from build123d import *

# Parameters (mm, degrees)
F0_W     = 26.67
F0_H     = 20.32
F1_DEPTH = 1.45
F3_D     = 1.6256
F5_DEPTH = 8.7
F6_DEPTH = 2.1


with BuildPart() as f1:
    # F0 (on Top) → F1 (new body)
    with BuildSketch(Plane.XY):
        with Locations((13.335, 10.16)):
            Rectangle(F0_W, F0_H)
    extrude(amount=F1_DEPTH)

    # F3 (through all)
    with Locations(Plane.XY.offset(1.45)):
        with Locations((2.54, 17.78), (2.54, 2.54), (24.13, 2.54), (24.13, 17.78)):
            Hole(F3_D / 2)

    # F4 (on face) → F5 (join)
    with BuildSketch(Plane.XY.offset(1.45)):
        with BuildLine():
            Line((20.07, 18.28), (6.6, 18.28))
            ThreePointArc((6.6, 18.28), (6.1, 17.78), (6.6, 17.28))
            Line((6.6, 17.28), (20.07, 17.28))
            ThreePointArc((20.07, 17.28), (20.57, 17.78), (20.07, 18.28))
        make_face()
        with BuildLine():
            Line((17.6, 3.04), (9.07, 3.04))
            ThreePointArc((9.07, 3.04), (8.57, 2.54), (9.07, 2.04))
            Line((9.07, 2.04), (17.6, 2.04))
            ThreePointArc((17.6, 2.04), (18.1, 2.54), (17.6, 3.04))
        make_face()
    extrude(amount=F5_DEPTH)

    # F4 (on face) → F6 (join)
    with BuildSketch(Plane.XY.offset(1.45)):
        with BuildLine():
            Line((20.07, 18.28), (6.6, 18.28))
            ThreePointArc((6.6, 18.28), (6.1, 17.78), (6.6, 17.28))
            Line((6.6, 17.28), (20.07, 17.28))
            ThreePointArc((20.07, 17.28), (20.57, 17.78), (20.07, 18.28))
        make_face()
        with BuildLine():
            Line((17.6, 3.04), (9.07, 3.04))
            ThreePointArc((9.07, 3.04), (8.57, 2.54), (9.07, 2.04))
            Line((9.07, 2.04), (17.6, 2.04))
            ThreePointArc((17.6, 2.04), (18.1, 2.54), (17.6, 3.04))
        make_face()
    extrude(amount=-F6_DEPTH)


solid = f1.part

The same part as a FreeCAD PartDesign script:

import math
import FreeCAD as App
import Part
import Sketcher
Q = App.Units.Quantity


def add_polygon(sketch, points):
    """Adds a closed chain of lines whose ends are joined by coincident constraints."""
    first, n = sketch.GeometryCount, len(points)
    for a, b in zip(points, points[1:] + points[:1]):
        sketch.addGeometry(Part.LineSegment(App.Vector(*a, 0), App.Vector(*b, 0)), False)
    for i in range(n):
        sketch.addConstraint(Sketcher.Constraint("Coincident", first + i, 2, first + (i + 1) % n, 1))

doc = App.newDocument("Part")
body = doc.addObject("PartDesign::Body", "Body")

# Sketch on XY plane
sketch1 = body.newObject("Sketcher::SketchObject", "Sketch")
sketch1.AttachmentSupport = (doc.getObject("XY_Plane"), [""])
sketch1.MapMode = "FlatFace"
add_polygon(sketch1, [(0, 20), (0, 0), (27, 0), (27, 20)])  # lines 0-3
sketch1.addConstraint([
    Sketcher.Constraint("Vertical", 0),
    Sketcher.Constraint("Horizontal", 1),
    Sketcher.Constraint("Vertical", 2),
    Sketcher.Constraint("Horizontal", 3),
    Sketcher.Constraint("Coincident", 0, 2, -1, 1),
    Sketcher.Constraint("DistanceX", 1, 1, 1, 2, Q("26.67 mm")),
    Sketcher.Constraint("DistanceY", 0, 2, 0, 1, Q("20.32 mm")),
])
pad1 = body.newObject("PartDesign::Pad", "Pad")
pad1.Profile = sketch1
pad1.Length = 1.45

# Sketch on XY plane
sketch2 = body.newObject("Sketcher::SketchObject", "Sketch001")
sketch2.AttachmentSupport = (doc.getObject("XY_Plane"), [""])
sketch2.MapMode = "FlatFace"
sketch2.AttachmentOffset = App.Placement(App.Vector(0, 0, 1.45), App.Rotation())
sketch2.addGeometry([
    Part.Circle(App.Vector(2.5, 17.8, 0), App.Vector(0, 0, 1), 0.8),
    Part.Circle(App.Vector(2.5, 2.5, 0), App.Vector(0, 0, 1), 0.8),
    Part.Circle(App.Vector(24.1, 2.5, 0), App.Vector(0, 0, 1), 0.8),
    Part.Circle(App.Vector(24.1, 17.8, 0), App.Vector(0, 0, 1), 0.8),
], False)
sketch2.addConstraint([
    Sketcher.Constraint("Equal", 0, 1),
    Sketcher.Constraint("Equal", 1, 2),
    Sketcher.Constraint("Equal", 2, 3),
    Sketcher.Constraint("Horizontal", 1, 3, 2, 3),
    Sketcher.Constraint("Horizontal", 0, 3, 3, 3),
    Sketcher.Constraint("Vertical", 0, 3, 1, 3),
    Sketcher.Constraint("Vertical", 2, 3, 3, 3),
    Sketcher.Constraint("Diameter", 0, Q("1.6256 mm")),
    Sketcher.Constraint("DistanceX", -1, 1, 0, 3, Q("2.54 mm")),
    Sketcher.Constraint("DistanceY", -1, 1, 0, 3, Q("17.78 mm")),
    Sketcher.Constraint("DistanceY", -1, 1, 1, 3, Q("2.54 mm")),
    Sketcher.Constraint("DistanceX", -1, 1, 2, 3, Q("24.13 mm")),
])
doc.recompute()
hole = body.newObject("PartDesign::Hole", "Hole")
hole.Profile = sketch2
hole.ThreadType = "None"
hole.Diameter = 1.6256
hole.DepthType = "ThroughAll"

# Sketch on XY plane
sketch3 = body.newObject("Sketcher::SketchObject", "Sketch002")
sketch3.AttachmentSupport = (doc.getObject("XY_Plane"), [""])
sketch3.MapMode = "FlatFace"
sketch3.AttachmentOffset = App.Placement(App.Vector(0, 0, 1.45), App.Rotation())
sketch3.addGeometry([
    Part.LineSegment(App.Vector(20.1, 18.3, 0), App.Vector(6.6, 18.3, 0)),  # 0
    Part.ArcOfCircle(Part.Circle(App.Vector(6.6, 17.8, 0), App.Vector(0, 0, 1), 0.5), math.radians(90), math.radians(270)),  # 1
    Part.LineSegment(App.Vector(6.6, 17.3, 0), App.Vector(20.1, 17.3, 0)),  # 2
    Part.ArcOfCircle(Part.Circle(App.Vector(20.1, 17.8, 0), App.Vector(0, 0, 1), 0.5), math.radians(-90), math.radians(90)),  # 3
    Part.LineSegment(App.Vector(17.6, 3, 0), App.Vector(9.1, 3, 0)),  # 4
    Part.ArcOfCircle(Part.Circle(App.Vector(9.1, 2.5, 0), App.Vector(0, 0, 1), 0.5), math.radians(90), math.radians(270)),  # 5
    Part.LineSegment(App.Vector(9.1, 2, 0), App.Vector(17.6, 2, 0)),  # 6
    Part.ArcOfCircle(Part.Circle(App.Vector(17.6, 2.5, 0), App.Vector(0, 0, 1), 0.5), math.radians(-90), math.radians(90)),  # 7
], False)
sketch3.addConstraint([
    Sketcher.Constraint("Tangent", 0, 2, 1, 1),
    Sketcher.Constraint("Tangent", 1, 2, 2, 1),
    Sketcher.Constraint("Tangent", 2, 2, 3, 1),
    Sketcher.Constraint("Tangent", 3, 2, 0, 1),
    Sketcher.Constraint("Tangent", 4, 2, 5, 1),
    Sketcher.Constraint("Tangent", 5, 2, 6, 1),
    Sketcher.Constraint("Tangent", 6, 2, 7, 1),
    Sketcher.Constraint("Tangent", 7, 2, 4, 1),
    Sketcher.Constraint("Horizontal", 0),
    Sketcher.Constraint("Horizontal", 2),
    Sketcher.Constraint("Horizontal", 4),
    Sketcher.Constraint("Horizontal", 6),
    Sketcher.Constraint("Equal", 3, 5),
    Sketcher.Constraint("Radius", 1, Q("0.5 mm")),
    Sketcher.Constraint("DistanceX", 5, 3, 3, 3, Q("11 mm")),
    Sketcher.Constraint("DistanceX", 1, 3, 7, 3, Q("11 mm")),
    Sketcher.Constraint("DistanceX", 0, 2, 0, 1, Q("13.47 mm")),
    Sketcher.Constraint("DistanceX", -1, 1, 1, 3, Q("6.6 mm")),
    Sketcher.Constraint("DistanceY", -1, 1, 1, 3, Q("17.78 mm")),
    Sketcher.Constraint("DistanceY", -1, 1, 5, 3, Q("2.54 mm")),
])
pad2 = body.newObject("PartDesign::Pad", "Pad001")
pad2.Profile = sketch3
pad2.Length = 8.7

# Sketch on XY plane
sketch4 = body.newObject("Sketcher::SketchObject", "Sketch003")
sketch4.AttachmentSupport = (doc.getObject("XY_Plane"), [""])
sketch4.MapMode = "FlatFace"
sketch4.AttachmentOffset = App.Placement(App.Vector(0, 0, 1.45), App.Rotation())
sketch4.addGeometry([
    Part.LineSegment(App.Vector(20.1, 18.3, 0), App.Vector(6.6, 18.3, 0)),  # 0
    Part.ArcOfCircle(Part.Circle(App.Vector(6.6, 17.8, 0), App.Vector(0, 0, 1), 0.5), math.radians(90), math.radians(270)),  # 1
    Part.LineSegment(App.Vector(6.6, 17.3, 0), App.Vector(20.1, 17.3, 0)),  # 2
    Part.ArcOfCircle(Part.Circle(App.Vector(20.1, 17.8, 0), App.Vector(0, 0, 1), 0.5), math.radians(-90), math.radians(90)),  # 3
    Part.LineSegment(App.Vector(17.6, 3, 0), App.Vector(9.1, 3, 0)),  # 4
    Part.ArcOfCircle(Part.Circle(App.Vector(9.1, 2.5, 0), App.Vector(0, 0, 1), 0.5), math.radians(90), math.radians(270)),  # 5
    Part.LineSegment(App.Vector(9.1, 2, 0), App.Vector(17.6, 2, 0)),  # 6
    Part.ArcOfCircle(Part.Circle(App.Vector(17.6, 2.5, 0), App.Vector(0, 0, 1), 0.5), math.radians(-90), math.radians(90)),  # 7
], False)
sketch4.addConstraint([
    Sketcher.Constraint("Tangent", 0, 2, 1, 1),
    Sketcher.Constraint("Tangent", 1, 2, 2, 1),
    Sketcher.Constraint("Tangent", 2, 2, 3, 1),
    Sketcher.Constraint("Tangent", 3, 2, 0, 1),
    Sketcher.Constraint("Tangent", 4, 2, 5, 1),
    Sketcher.Constraint("Tangent", 5, 2, 6, 1),
    Sketcher.Constraint("Tangent", 6, 2, 7, 1),
    Sketcher.Constraint("Tangent", 7, 2, 4, 1),
    Sketcher.Constraint("Horizontal", 0),
    Sketcher.Constraint("Horizontal", 2),
    Sketcher.Constraint("Horizontal", 4),
    Sketcher.Constraint("Horizontal", 6),
    Sketcher.Constraint("Equal", 3, 5),
    Sketcher.Constraint("Radius", 1, Q("0.5 mm")),
    Sketcher.Constraint("DistanceX", 5, 3, 3, 3, Q("11 mm")),
    Sketcher.Constraint("DistanceX", 1, 3, 7, 3, Q("11 mm")),
    Sketcher.Constraint("DistanceX", 0, 2, 0, 1, Q("13.47 mm")),
    Sketcher.Constraint("DistanceX", -1, 1, 1, 3, Q("6.6 mm")),
    Sketcher.Constraint("DistanceY", -1, 1, 1, 3, Q("17.78 mm")),
    Sketcher.Constraint("DistanceY", -1, 1, 5, 3, Q("2.54 mm")),
])
pad3 = body.newObject("PartDesign::Pad", "Pad002")
pad3.Profile = sketch4
pad3.Length = 2.1
pad3.Reversed = True

doc.recompute()
